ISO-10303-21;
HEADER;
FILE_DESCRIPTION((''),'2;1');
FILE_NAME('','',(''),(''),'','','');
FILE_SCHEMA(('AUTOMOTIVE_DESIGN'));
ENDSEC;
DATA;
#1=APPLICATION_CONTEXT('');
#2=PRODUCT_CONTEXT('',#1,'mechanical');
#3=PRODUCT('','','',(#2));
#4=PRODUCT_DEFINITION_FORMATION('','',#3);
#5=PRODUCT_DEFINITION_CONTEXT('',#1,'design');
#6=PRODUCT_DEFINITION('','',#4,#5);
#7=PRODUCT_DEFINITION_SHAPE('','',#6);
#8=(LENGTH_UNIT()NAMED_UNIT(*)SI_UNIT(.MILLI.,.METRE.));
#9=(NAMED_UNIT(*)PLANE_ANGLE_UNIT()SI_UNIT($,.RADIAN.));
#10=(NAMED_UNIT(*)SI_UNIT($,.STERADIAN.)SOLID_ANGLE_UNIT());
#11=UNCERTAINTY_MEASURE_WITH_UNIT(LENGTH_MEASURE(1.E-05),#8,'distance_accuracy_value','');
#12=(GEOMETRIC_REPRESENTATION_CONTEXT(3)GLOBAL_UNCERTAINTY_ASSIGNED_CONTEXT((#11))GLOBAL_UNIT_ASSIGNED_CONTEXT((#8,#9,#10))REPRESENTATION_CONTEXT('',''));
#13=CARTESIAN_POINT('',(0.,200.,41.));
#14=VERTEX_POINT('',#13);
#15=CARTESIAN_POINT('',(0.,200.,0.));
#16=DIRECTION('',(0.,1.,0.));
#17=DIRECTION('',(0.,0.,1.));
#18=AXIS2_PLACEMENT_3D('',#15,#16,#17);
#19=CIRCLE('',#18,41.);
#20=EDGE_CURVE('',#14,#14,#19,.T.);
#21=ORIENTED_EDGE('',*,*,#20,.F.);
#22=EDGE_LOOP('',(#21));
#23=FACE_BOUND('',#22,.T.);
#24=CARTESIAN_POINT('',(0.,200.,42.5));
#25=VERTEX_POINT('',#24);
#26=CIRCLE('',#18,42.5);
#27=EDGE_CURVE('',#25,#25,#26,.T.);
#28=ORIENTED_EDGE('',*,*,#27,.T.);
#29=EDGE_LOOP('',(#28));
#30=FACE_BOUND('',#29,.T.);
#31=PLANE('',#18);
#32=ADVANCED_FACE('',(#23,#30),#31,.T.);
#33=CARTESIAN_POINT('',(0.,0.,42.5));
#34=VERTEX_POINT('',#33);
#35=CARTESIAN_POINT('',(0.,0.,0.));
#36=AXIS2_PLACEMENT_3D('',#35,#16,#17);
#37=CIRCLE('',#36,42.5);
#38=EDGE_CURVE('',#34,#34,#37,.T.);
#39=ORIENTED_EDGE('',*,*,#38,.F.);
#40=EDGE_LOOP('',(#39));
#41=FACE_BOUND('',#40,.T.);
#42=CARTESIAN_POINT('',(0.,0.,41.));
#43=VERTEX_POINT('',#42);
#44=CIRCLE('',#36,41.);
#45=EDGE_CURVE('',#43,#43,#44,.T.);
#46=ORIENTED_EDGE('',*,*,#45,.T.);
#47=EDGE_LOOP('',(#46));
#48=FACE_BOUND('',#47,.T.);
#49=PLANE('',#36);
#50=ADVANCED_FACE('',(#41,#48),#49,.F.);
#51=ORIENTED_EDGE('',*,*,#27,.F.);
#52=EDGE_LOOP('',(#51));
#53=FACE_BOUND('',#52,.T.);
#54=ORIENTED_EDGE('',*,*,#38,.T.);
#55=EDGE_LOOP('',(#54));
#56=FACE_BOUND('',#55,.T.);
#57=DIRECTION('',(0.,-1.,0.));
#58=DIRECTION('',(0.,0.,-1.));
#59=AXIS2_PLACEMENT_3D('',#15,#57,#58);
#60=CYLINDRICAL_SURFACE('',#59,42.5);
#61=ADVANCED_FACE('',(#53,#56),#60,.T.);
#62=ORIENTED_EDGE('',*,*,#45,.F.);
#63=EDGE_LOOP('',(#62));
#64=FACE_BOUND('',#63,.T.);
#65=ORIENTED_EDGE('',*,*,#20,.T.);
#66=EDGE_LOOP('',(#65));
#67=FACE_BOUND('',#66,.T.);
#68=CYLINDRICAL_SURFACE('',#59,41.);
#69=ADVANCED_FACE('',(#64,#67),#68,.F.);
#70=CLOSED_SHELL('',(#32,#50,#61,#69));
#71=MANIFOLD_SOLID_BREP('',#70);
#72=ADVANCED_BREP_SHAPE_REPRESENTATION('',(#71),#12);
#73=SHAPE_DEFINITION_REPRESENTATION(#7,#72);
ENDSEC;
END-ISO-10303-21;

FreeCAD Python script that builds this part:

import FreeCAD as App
import Part
import Sketcher

doc = App.newDocument("Part")
body = doc.addObject("PartDesign::Body", "Body")

sketch1 = body.newObject("Sketcher::SketchObject", "Sketch")
sketch1.AttachmentSupport = (doc.getObject("XZ_Plane"), [""])
sketch1.MapMode = "FlatFace"
sketch1.addGeometry(Part.Circle(App.Vector(0, 0, 0), App.Vector(0, 0, 1), 42), False)
sketch1.addGeometry(Part.Circle(App.Vector(0, 0, 0), App.Vector(0, 0, 1), 41), False)
sketch1.addConstraint(Sketcher.Constraint("Coincident", 0, 3, -1, 1))
sketch1.addConstraint(Sketcher.Constraint("Coincident", 1, 3, -1, 1))
sketch1.addConstraint(Sketcher.Constraint("Diameter", 0, 85.0))
sketch1.addConstraint(Sketcher.Constraint("Diameter", 1, 82.0))
pad1 = body.newObject("PartDesign::Pad", "Pad")
pad1.Profile = sketch1
pad1.Length = 200
pad1.Reversed = True

doc.recompute()
